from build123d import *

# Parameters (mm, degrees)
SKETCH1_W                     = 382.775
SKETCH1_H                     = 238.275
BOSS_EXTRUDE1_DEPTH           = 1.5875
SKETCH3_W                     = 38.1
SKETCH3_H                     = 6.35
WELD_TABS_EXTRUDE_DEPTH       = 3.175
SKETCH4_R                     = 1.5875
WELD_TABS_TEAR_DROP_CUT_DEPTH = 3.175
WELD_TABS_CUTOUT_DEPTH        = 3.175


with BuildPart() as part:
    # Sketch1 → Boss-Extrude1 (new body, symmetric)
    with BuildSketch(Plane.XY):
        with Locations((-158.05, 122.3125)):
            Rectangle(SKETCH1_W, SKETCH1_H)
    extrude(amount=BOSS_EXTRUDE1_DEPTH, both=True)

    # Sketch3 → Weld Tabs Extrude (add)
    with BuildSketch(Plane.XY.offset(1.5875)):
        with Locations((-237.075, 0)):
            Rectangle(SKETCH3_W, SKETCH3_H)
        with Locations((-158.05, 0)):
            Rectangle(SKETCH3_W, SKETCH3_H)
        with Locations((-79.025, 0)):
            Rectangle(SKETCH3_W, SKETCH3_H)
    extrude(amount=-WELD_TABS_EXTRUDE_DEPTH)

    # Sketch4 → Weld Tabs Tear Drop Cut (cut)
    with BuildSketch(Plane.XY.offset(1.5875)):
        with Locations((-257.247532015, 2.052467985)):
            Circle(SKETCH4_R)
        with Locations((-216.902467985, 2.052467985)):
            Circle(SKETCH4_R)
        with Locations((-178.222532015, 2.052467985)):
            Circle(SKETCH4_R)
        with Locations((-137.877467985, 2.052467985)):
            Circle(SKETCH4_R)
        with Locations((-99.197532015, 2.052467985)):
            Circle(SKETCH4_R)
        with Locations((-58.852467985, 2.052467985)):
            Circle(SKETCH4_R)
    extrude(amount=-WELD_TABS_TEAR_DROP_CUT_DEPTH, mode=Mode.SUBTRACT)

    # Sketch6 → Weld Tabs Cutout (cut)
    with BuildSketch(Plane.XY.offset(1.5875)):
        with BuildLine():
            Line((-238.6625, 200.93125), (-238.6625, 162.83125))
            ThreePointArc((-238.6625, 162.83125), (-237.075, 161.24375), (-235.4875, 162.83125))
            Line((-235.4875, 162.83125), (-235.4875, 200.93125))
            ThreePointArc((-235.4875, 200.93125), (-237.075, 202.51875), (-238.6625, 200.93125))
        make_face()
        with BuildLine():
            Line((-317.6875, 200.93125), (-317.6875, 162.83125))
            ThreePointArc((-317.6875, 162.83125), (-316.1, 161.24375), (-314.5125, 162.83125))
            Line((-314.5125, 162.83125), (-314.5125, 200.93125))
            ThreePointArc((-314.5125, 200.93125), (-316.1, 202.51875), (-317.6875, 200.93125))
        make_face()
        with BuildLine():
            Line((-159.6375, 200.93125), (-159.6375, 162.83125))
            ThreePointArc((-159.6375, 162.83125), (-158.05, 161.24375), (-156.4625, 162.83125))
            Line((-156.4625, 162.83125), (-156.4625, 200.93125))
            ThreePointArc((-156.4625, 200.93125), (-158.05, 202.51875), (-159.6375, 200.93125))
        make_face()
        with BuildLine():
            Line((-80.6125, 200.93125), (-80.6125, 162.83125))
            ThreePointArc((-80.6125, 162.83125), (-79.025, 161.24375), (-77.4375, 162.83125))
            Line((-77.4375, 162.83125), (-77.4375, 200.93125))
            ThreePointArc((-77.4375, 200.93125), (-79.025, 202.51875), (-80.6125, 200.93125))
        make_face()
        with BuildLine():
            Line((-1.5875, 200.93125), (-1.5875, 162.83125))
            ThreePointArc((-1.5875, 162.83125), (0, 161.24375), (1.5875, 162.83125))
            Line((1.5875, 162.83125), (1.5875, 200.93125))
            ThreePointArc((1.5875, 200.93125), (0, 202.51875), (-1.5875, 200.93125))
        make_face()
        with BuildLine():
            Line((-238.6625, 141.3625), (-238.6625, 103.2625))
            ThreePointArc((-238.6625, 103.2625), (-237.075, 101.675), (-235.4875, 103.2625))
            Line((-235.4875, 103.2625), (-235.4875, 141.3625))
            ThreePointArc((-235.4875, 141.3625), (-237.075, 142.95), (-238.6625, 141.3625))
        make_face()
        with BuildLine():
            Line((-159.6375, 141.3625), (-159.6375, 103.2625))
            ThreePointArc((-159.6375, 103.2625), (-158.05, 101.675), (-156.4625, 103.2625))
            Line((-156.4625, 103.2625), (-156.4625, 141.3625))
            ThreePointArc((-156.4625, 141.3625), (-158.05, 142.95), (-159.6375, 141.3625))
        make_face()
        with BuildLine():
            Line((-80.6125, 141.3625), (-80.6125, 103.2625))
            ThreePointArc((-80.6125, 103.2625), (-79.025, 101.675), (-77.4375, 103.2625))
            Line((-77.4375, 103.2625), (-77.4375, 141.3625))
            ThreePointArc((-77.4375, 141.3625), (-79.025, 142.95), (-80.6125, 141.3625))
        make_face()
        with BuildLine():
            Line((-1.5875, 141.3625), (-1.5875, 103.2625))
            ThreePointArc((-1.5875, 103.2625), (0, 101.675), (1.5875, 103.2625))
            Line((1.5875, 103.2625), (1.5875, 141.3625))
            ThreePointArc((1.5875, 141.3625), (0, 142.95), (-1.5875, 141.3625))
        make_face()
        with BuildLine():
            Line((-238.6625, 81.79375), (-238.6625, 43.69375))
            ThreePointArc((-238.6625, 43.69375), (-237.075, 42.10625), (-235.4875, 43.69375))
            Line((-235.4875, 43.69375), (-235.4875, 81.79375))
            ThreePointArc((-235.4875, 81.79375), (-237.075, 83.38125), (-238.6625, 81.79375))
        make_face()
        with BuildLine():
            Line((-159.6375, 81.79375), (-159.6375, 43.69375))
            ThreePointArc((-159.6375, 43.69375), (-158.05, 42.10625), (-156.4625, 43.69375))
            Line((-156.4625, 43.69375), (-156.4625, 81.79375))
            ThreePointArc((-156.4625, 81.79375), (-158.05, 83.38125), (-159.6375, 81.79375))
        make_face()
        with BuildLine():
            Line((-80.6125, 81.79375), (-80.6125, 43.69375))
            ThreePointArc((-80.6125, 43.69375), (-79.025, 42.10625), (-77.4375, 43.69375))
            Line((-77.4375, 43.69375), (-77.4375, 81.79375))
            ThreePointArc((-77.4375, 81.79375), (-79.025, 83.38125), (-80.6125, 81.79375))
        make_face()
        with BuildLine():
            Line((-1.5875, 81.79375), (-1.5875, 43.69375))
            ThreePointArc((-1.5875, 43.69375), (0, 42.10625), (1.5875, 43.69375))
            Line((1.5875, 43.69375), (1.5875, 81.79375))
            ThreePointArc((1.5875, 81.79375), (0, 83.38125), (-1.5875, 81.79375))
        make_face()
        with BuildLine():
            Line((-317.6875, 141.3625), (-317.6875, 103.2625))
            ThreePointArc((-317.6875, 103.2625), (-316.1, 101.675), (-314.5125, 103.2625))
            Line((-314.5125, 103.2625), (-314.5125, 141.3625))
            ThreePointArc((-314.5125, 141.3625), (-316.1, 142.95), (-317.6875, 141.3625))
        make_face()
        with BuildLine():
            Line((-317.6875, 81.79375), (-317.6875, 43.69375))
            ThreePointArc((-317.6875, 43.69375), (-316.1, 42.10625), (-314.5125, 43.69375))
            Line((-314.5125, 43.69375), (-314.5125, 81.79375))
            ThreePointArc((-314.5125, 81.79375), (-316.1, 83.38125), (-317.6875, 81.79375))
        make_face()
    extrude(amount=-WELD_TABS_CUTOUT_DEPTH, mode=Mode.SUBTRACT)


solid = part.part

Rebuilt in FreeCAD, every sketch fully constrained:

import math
import FreeCAD as App
import Part
import Sketcher
Q = App.Units.Quantity

doc = App.newDocument("Part")
params = doc.addObject("Spreadsheet::Sheet", "Params")
for row, (alias, value) in enumerate([
    ("pad1_length", "0.125 in"),
    ("sketch2_width", "1.5 in"),
    ("sketch2_height", "0.25 in"),
    ("pad2_length", "0.125 in"),
    ("sketch3_diameter", "0.125 in"),
    ("pocket1_length", "0.125 in"),
    ("sketch4_height", "1.5 in"),
    ("sketch4_radius", "0.0625 in"),
    ("pocket2_length", "0.125 in"),
], start=1):
    params.set(f"A{row}", alias)
    params.set(f"B{row}", "=" + value)
    params.setAlias(f"B{row}", alias)

body = doc.addObject("PartDesign::Body", "Body")

# Sketch on XY plane
sketch1 = doc.addObject("Sketcher::SketchObject", "Sketch")
body.addObject(sketch1)
sketch1.AttachmentSupport = (doc.XY_Plane, [""])
sketch1.MapMode = "FlatFace"
sketch1.addGeometry(Part.LineSegment(App.Vector(-349, 241, 0), App.Vector(-349, 3, 0)), False)
sketch1.addGeometry(Part.LineSegment(App.Vector(-349, 3, 0), App.Vector(33, 3, 0)), False)
sketch1.addGeometry(Part.LineSegment(App.Vector(33, 3, 0), App.Vector(33, 241, 0)), False)
sketch1.addGeometry(Part.LineSegment(App.Vector(33, 241, 0), App.Vector(-349, 241, 0)), False)
sketch1.addConstraint(Sketcher.Constraint("Coincident", 0, 2, 1, 1))
sketch1.addConstraint(Sketcher.Constraint("Coincident", 1, 2, 2, 1))
sketch1.addConstraint(Sketcher.Constraint("Coincident", 2, 2, 3, 1))
sketch1.addConstraint(Sketcher.Constraint("Coincident", 3, 2, 0, 1))
sketch1.addConstraint(Sketcher.Constraint("Vertical", 0))
sketch1.addConstraint(Sketcher.Constraint("Horizontal", 1))
sketch1.addConstraint(Sketcher.Constraint("Vertical", 2))
sketch1.addConstraint(Sketcher.Constraint("Horizontal", 3))
sketch1.addConstraint(Sketcher.Constraint("DistanceY", -1, 1, 0, 2, Q("0.125 in")))
sketch1.addConstraint(Sketcher.Constraint("DistanceX", -1, 1, 1, 2, Q("1.3125 in")))
sketch1.addConstraint(Sketcher.Constraint("DistanceX", 1, 1, 1, 2, Q("382.775 mm")))
sketch1.addConstraint(Sketcher.Constraint("DistanceY", 0, 2, 0, 1, Q("238.275 mm")))
pad1 = doc.addObject("PartDesign::Pad", "Pad")
body.addObject(pad1)
pad1.Profile = sketch1
pad1.setExpression("Length", "Params.pad1_length")
pad1.Midplane = True

# Sketch on XY plane
sketch2 = doc.addObject("Sketcher::SketchObject", "Sketch001")
body.addObject(sketch2)
sketch2.AttachmentSupport = (doc.XY_Plane, [""])
sketch2.MapMode = "FlatFace"
sketch2.AttachmentOffset = App.Placement(App.Vector(0, 0, 0.0625 * 25.4), App.Rotation())
sketch2.addGeometry(Part.LineSegment(App.Vector(-256, 3, 0), App.Vector(-256, -3, 0)), False)
sketch2.addGeometry(Part.LineSegment(App.Vector(-256, -3, 0), App.Vector(-218, -3, 0)), False)
sketch2.addGeometry(Part.LineSegment(App.Vector(-218, -3, 0), App.Vector(-218, 3, 0)), False)
sketch2.addGeometry(Part.LineSegment(App.Vector(-218, 3, 0), App.Vector(-256, 3, 0)), False)
sketch2.addGeometry(Part.LineSegment(App.Vector(-177, 3, 0), App.Vector(-177, -3, 0)), False)
sketch2.addGeometry(Part.LineSegment(App.Vector(-177, -3, 0), App.Vector(-139, -3, 0)), False)
sketch2.addGeometry(Part.LineSegment(App.Vector(-139, -3, 0), App.Vector(-139, 3, 0)), False)
sketch2.addGeometry(Part.LineSegment(App.Vector(-139, 3, 0), App.Vector(-177, 3, 0)), False)
sketch2.addGeometry(Part.LineSegment(App.Vector(-98, 3, 0), App.Vector(-98, -3, 0)), False)
sketch2.addGeometry(Part.LineSegment(App.Vector(-98, -3, 0), App.Vector(-60, -3, 0)), False)
sketch2.addGeometry(Part.LineSegment(App.Vector(-60, -3, 0), App.Vector(-60, 3, 0)), False)
sketch2.addGeometry(Part.LineSegment(App.Vector(-60, 3, 0), App.Vector(-98, 3, 0)), False)
sketch2.addConstraint(Sketcher.Constraint("Coincident", 0, 2, 1, 1))
sketch2.addConstraint(Sketcher.Constraint("Coincident", 1, 2, 2, 1))
sketch2.addConstraint(Sketcher.Constraint("Coincident", 2, 2, 3, 1))
sketch2.addConstraint(Sketcher.Constraint("Coincident", 3, 2, 0, 1))
sketch2.addConstraint(Sketcher.Constraint("Coincident", 4, 2, 5, 1))
sketch2.addConstraint(Sketcher.Constraint("Coincident", 5, 2, 6, 1))
sketch2.addConstraint(Sketcher.Constraint("Coincident", 6, 2, 7, 1))
sketch2.addConstraint(Sketcher.Constraint("Coincident", 7, 2, 4, 1))
sketch2.addConstraint(Sketcher.Constraint("Coincident", 8, 2, 9, 1))
sketch2.addConstraint(Sketcher.Constraint("Coincident", 9, 2, 10, 1))
sketch2.addConstraint(Sketcher.Constraint("Coincident", 10, 2, 11, 1))
sketch2.addConstraint(Sketcher.Constraint("Coincident", 11, 2, 8, 1))
sketch2.addConstraint(Sketcher.Constraint("Vertical", 0))
sketch2.addConstraint(Sketcher.Constraint("Horizontal", 1))
sketch2.addConstraint(Sketcher.Constraint("Vertical", 2))
sketch2.addConstraint(Sketcher.Constraint("Horizontal", 3))
sketch2.addConstraint(Sketcher.Constraint("Vertical", 4))
sketch2.addConstraint(Sketcher.Constraint("Horizontal", 5))
sketch2.addConstraint(Sketcher.Constraint("Vertical", 6))
sketch2.addConstraint(Sketcher.Constraint("Horizontal", 7))
sketch2.addConstraint(Sketcher.Constraint("Vertical", 8))
sketch2.addConstraint(Sketcher.Constraint("Horizontal", 9))
sketch2.addConstraint(Sketcher.Constraint("Vertical", 10))
sketch2.addConstraint(Sketcher.Constraint("Horizontal", 11))
sketch2.addConstraint(Sketcher.Constraint("Horizontal", 1, 2, 4, 2))
sketch2.addConstraint(Sketcher.Constraint("Horizontal", 3, 2, 6, 2))
sketch2.addConstraint(Sketcher.Constraint("Horizontal", 5, 2, 8, 2))
sketch2.addConstraint(Sketcher.Constraint("Horizontal", 7, 2, 10, 2))
sketch2.addConstraint(Sketcher.Constraint("Equal", 3, 5))
sketch2.addConstraint(Sketcher.Constraint("Equal", 7, 9))
sketch2.addConstraint(Sketcher.Constraint("DistanceX", 1, 1, 1, 2, Q("1.5 in")))
sketch2.addConstraint(Sketcher.Constraint("DistanceY", 0, 2, 0, 1, Q("0.25 in")))
sketch2.addConstraint(Sketcher.Constraint("DistanceY", 0, 2, -1, 1, Q("0.125 in")))
sketch2.addConstraint(Sketcher.Constraint("DistanceX", 0, 2, -1, 1, Q("256.125 mm")))
sketch2.addConstraint(Sketcher.Constraint("DistanceX", 4, 2, -1, 1, Q("177.1 mm")))
sketch2.addConstraint(Sketcher.Constraint("DistanceX", 8, 2, -1, 1, Q("98.075 mm")))
sketch2.setExpression("Constraints[30]", "Params.sketch2_width")
sketch2.setExpression("Constraints[31]", "Params.sketch2_height")
pad2 = doc.addObject("PartDesign::Pad", "Pad001")
body.addObject(pad2)
pad2.Profile = sketch2
pad2.setExpression("Length", "Params.pad2_length")
pad2.Reversed = True

# Sketch on XY plane
sketch3 = doc.addObject("Sketcher::SketchObject", "Sketch002")
body.addObject(sketch3)
sketch3.AttachmentSupport = (doc.XY_Plane, [""])
sketch3.MapMode = "FlatFace"
sketch3.AttachmentOffset = App.Placement(App.Vector(0, 0, 0.0625 * 25.4), App.Rotation())
sketch3.addGeometry(Part.Circle(App.Vector(-257.2, 2.1, 0), App.Vector(0, 0, 1), 1.6), False)
sketch3.addGeometry(Part.Circle(App.Vector(-216.9, 2.1, 0), App.Vector(0, 0, 1), 1.6), False)
sketch3.addGeometry(Part.Circle(App.Vector(-178.2, 2.1, 0), App.Vector(0, 0, 1), 1.6), False)
sketch3.addGeometry(Part.Circle(App.Vector(-137.9, 2.1, 0), App.Vector(0, 0, 1), 1.6), False)
sketch3.addGeometry(Part.Circle(App.Vector(-99.2, 2.1, 0), App.Vector(0, 0, 1), 1.6), False)
sketch3.addGeometry(Part.Circle(App.Vector(-58.9, 2.1, 0), App.Vector(0, 0, 1), 1.6), False)
sketch3.addConstraint(Sketcher.Constraint("Equal", 0, 1))
sketch3.addConstraint(Sketcher.Constraint("Equal", 1, 2))
sketch3.addConstraint(Sketcher.Constraint("Equal", 2, 3))
sketch3.addConstraint(Sketcher.Constraint("Equal", 3, 4))
sketch3.addConstraint(Sketcher.Constraint("Equal", 4, 5))
sketch3.addConstraint(Sketcher.Constraint("Horizontal", 0, 3, 1, 3))
sketch3.addConstraint(Sketcher.Constraint("Horizontal", 1, 3, 2, 3))
sketch3.addConstraint(Sketcher.Constraint("Horizontal", 2, 3, 3, 3))
sketch3.addConstraint(Sketcher.Constraint("Horizontal", 3, 3, 4, 3))
sketch3.addConstraint(Sketcher.Constraint("Horizontal", 4, 3, 5, 3))
sketch3.addConstraint(Sketcher.Constraint("Diameter", 0, Q("0.125 in")))
sketch3.addConstraint(Sketcher.Constraint("DistanceX", 0, 3, 2, 3, Q("79.025 mm")))
sketch3.addConstraint(Sketcher.Constraint("DistanceX", 1, 3, 3, 3, Q("79.025 mm")))
sketch3.addConstraint(Sketcher.Constraint("DistanceX", 2, 3, 4, 3, Q("79.025 mm")))
sketch3.addConstraint(Sketcher.Constraint("DistanceX", 3, 3, 5, 3, Q("79.025 mm")))
sketch3.addConstraint(Sketcher.Constraint("DistanceX", 0, 3, -1, 1, Q("257.247532 mm")))
sketch3.addConstraint(Sketcher.Constraint("DistanceY", -1, 1, 0, 3, Q("2.052468 mm")))
sketch3.addConstraint(Sketcher.Constraint("DistanceX", 1, 3, -1, 1, Q("216.902468 mm")))
sketch3.setExpression("Constraints[10]", "Params.sketch3_diameter")
pocket1 = doc.addObject("PartDesign::Pocket", "Pocket")
body.addObject(pocket1)
pocket1.Profile = sketch3
pocket1.setExpression("Length", "Params.pocket1_length")

# Sketch on XY plane
sketch4 = doc.addObject("Sketcher::SketchObject", "Sketch003")
body.addObject(sketch4)
sketch4.AttachmentSupport = (doc.XY_Plane, [""])
sketch4.MapMode = "FlatFace"
sketch4.AttachmentOffset = App.Placement(App.Vector(0, 0, 0.0625 * 25.4), App.Rotation())
sketch4.addGeometry(Part.LineSegment(App.Vector(-238.7, 200.9, 0), App.Vector(-238.7, 162.8, 0)), False)
sketch4.addGeometry(Part.ArcOfCircle(Part.Circle(App.Vector(-237.1, 162.8, 0), App.Vector(0, 0, 1), 1.6), math.radians(180), math.radians(360)), False)
sketch4.addGeometry(Part.LineSegment(App.Vector(-235.5, 162.8, 0), App.Vector(-235.5, 200.9, 0)), False)
sketch4.addGeometry(Part.ArcOfCircle(Part.Circle(App.Vector(-237.1, 200.9, 0), App.Vector(0, 0, 1), 1.6), math.radians(0), math.radians(180)), False)
sketch4.addGeometry(Part.LineSegment(App.Vector(-317.7, 200.9, 0), App.Vector(-317.7, 162.8, 0)), False)
sketch4.addGeometry(Part.ArcOfCircle(Part.Circle(App.Vector(-316.1, 162.8, 0), App.Vector(0, 0, 1), 1.6), math.radians(180), math.radians(360)), False)
sketch4.addGeometry(Part.LineSegment(App.Vector(-314.5, 162.8, 0), App.Vector(-314.5, 200.9, 0)), False)
sketch4.addGeometry(Part.ArcOfCircle(Part.Circle(App.Vector(-316.1, 200.9, 0), App.Vector(0, 0, 1), 1.6), math.radians(0), math.radians(180)), False)
sketch4.addGeometry(Part.LineSegment(App.Vector(-159.6, 200.9, 0), App.Vector(-159.6, 162.8, 0)), False)
sketch4.addGeometry(Part.ArcOfCircle(Part.Circle(App.Vector(-158.1, 162.8, 0), App.Vector(0, 0, 1), 1.6), math.radians(180), math.radians(360)), False)
sketch4.addGeometry(Part.LineSegment(App.Vector(-156.5, 162.8, 0), App.Vector(-156.5, 200.9, 0)), False)
sketch4.addGeometry(Part.ArcOfCircle(Part.Circle(App.Vector(-158.1, 200.9, 0), App.Vector(0, 0, 1), 1.6), math.radians(0), math.radians(180)), False)
sketch4.addGeometry(Part.LineSegment(App.Vector(-80.6, 200.9, 0), App.Vector(-80.6, 162.8, 0)), False)
sketch4.addGeometry(Part.ArcOfCircle(Part.Circle(App.Vector(-79, 162.8, 0), App.Vector(0, 0, 1), 1.6), math.radians(180), math.radians(360)), False)
sketch4.addGeometry(Part.LineSegment(App.Vector(-77.4, 162.8, 0), App.Vector(-77.4, 200.9, 0)), False)
sketch4.addGeometry(Part.ArcOfCircle(Part.Circle(App.Vector(-79, 200.9, 0), App.Vector(0, 0, 1), 1.6), math.radians(0), math.radians(180)), False)
sketch4.addGeometry(Part.LineSegment(App.Vector(-1.6, 200.9, 0), App.Vector(-1.6, 162.8, 0)), False)
sketch4.addGeometry(Part.ArcOfCircle(Part.Circle(App.Vector(0, 162.8, 0), App.Vector(0, 0, 1), 1.6), math.radians(180), math.radians(360)), False)
sketch4.addGeometry(Part.LineSegment(App.Vector(1.6, 162.8, 0), App.Vector(1.6, 200.9, 0)), False)
sketch4.addGeometry(Part.ArcOfCircle(Part.Circle(App.Vector(0, 200.9, 0), App.Vector(0, 0, 1), 1.6), math.radians(0), math.radians(180)), False)
sketch4.addGeometry(Part.LineSegment(App.Vector(-238.7, 141.4, 0), App.Vector(-238.7, 103.3, 0)), False)
sketch4.addGeometry(Part.ArcOfCircle(Part.Circle(App.Vector(-237.1, 103.3, 0), App.Vector(0, 0, 1), 1.6), math.radians(180), math.radians(360)), False)
sketch4.addGeometry(Part.LineSegment(App.Vector(-235.5, 103.3, 0), App.Vector(-235.5, 141.4, 0)), False)
sketch4.addGeometry(Part.ArcOfCircle(Part.Circle(App.Vector(-237.1, 141.4, 0), App.Vector(0, 0, 1), 1.6), math.radians(0), math.radians(180)), False)
sketch4.addGeometry(Part.LineSegment(App.Vector(-159.6, 141.4, 0), App.Vector(-159.6, 103.3, 0)), False)
sketch4.addGeometry(Part.ArcOfCircle(Part.Circle(App.Vector(-158.1, 103.3, 0), App.Vector(0, 0, 1), 1.6), math.radians(180), math.radians(360)), False)
sketch4.addGeometry(Part.LineSegment(App.Vector(-156.5, 103.3, 0), App.Vector(-156.5, 141.4, 0)), False)
sketch4.addGeometry(Part.ArcOfCircle(Part.Circle(App.Vector(-158.1, 141.4, 0), App.Vector(0, 0, 1), 1.6), math.radians(0), math.radians(180)), False)
sketch4.addGeometry(Part.LineSegment(App.Vector(-80.6, 141.4, 0), App.Vector(-80.6, 103.3, 0)), False)
sketch4.addGeometry(Part.ArcOfCircle(Part.Circle(App.Vector(-79, 103.3, 0), App.Vector(0, 0, 1), 1.6), math.radians(180), math.radians(360)), False)
sketch4.addGeometry(Part.LineSegment(App.Vector(-77.4, 103.3, 0), App.Vector(-77.4, 141.4, 0)), False)
sketch4.addGeometry(Part.ArcOfCircle(Part.Circle(App.Vector(-79, 141.4, 0), App.Vector(0, 0, 1), 1.6), math.radians(0), math.radians(180)), False)
sketch4.addGeometry(Part.LineSegment(App.Vector(-1.6, 141.4, 0), App.Vector(-1.6, 103.3, 0)), False)
sketch4.addGeometry(Part.ArcOfCircle(Part.Circle(App.Vector(0, 103.3, 0), App.Vector(0, 0, 1), 1.6), math.radians(180), math.radians(360)), False)
sketch4.addGeometry(Part.LineSegment(App.Vector(1.6, 103.3, 0), App.Vector(1.6, 141.4, 0)), False)
sketch4.addGeometry(Part.ArcOfCircle(Part.Circle(App.Vector(0, 141.4, 0), App.Vector(0, 0, 1), 1.6), math.radians(0), math.radians(180)), False)
sketch4.addGeometry(Part.LineSegment(App.Vector(-238.7, 81.8, 0), App.Vector(-238.7, 43.7, 0)), False)
sketch4.addGeometry(Part.ArcOfCircle(Part.Circle(App.Vector(-237.1, 43.7, 0), App.Vector(0, 0, 1), 1.6), math.radians(180), math.radians(360)), False)
sketch4.addGeometry(Part.LineSegment(App.Vector(-235.5, 43.7, 0), App.Vector(-235.5, 81.8, 0)), False)
sketch4.addGeometry(Part.ArcOfCircle(Part.Circle(App.Vector(-237.1, 81.8, 0), App.Vector(0, 0, 1), 1.6), math.radians(0), math.radians(180)), False)
sketch4.addGeometry(Part.LineSegment(App.Vector(-159.6, 81.8, 0), App.Vector(-159.6, 43.7, 0)), False)
sketch4.addGeometry(Part.ArcOfCircle(Part.Circle(App.Vector(-158.1, 43.7, 0), App.Vector(0, 0, 1), 1.6), math.radians(180), math.radians(360)), False)
sketch4.addGeometry(Part.LineSegment(App.Vector(-156.5, 43.7, 0), App.Vector(-156.5, 81.8, 0)), False)
sketch4.addGeometry(Part.ArcOfCircle(Part.Circle(App.Vector(-158.1, 81.8, 0), App.Vector(0, 0, 1), 1.6), math.radians(0), math.radians(180)), False)
sketch4.addGeometry(Part.LineSegment(App.Vector(-80.6, 81.8, 0), App.Vector(-80.6, 43.7, 0)), False)
sketch4.addGeometry(Part.ArcOfCircle(Part.Circle(App.Vector(-79, 43.7, 0), App.Vector(0, 0, 1), 1.6), math.radians(180), math.radians(360)), False)
sketch4.addGeometry(Part.LineSegment(App.Vector(-77.4, 43.7, 0), App.Vector(-77.4, 81.8, 0)), False)
sketch4.addGeometry(Part.ArcOfCircle(Part.Circle(App.Vector(-79, 81.8, 0), App.Vector(0, 0, 1), 1.6), math.radians(0), math.radians(180)), False)
sketch4.addGeometry(Part.LineSegment(App.Vector(-1.6, 81.8, 0), App.Vector(-1.6, 43.7, 0)), False)
sketch4.addGeometry(Part.ArcOfCircle(Part.Circle(App.Vector(0, 43.7, 0), App.Vector(0, 0, 1), 1.6), math.radians(180), math.radians(360)), False)
sketch4.addGeometry(Part.LineSegment(App.Vector(1.6, 43.7, 0), App.Vector(1.6, 81.8, 0)), False)
sketch4.addGeometry(Part.ArcOfCircle(Part.Circle(App.Vector(0, 81.8, 0), App.Vector(0, 0, 1), 1.6), math.radians(0), math.radians(180)), False)
sketch4.addGeometry(Part.LineSegment(App.Vector(-317.7, 141.4, 0), App.Vector(-317.7, 103.3, 0)), False)
sketch4.addGeometry(Part.ArcOfCircle(Part.Circle(App.Vector(-316.1, 103.3, 0), App.Vector(0, 0, 1), 1.6), math.radians(180), math.radians(360)), False)
sketch4.addGeometry(Part.LineSegment(App.Vector(-314.5, 103.3, 0), App.Vector(-314.5, 141.4, 0)), False)
sketch4.addGeometry(Part.ArcOfCircle(Part.Circle(App.Vector(-316.1, 141.4, 0), App.Vector(0, 0, 1), 1.6), math.radians(0), math.radians(180)), False)
sketch4.addGeometry(Part.LineSegment(App.Vector(-317.7, 81.8, 0), App.Vector(-317.7, 43.7, 0)), False)
sketch4.addGeometry(Part.ArcOfCircle(Part.Circle(App.Vector(-316.1, 43.7, 0), App.Vector(0, 0, 1), 1.6), math.radians(180), math.radians(360)), False)
sketch4.addGeometry(Part.LineSegment(App.Vector(-314.5, 43.7, 0), App.Vector(-314.5, 81.8, 0)), False)
sketch4.addGeometry(Part.ArcOfCircle(Part.Circle(App.Vector(-316.1, 81.8, 0), App.Vector(0, 0, 1), 1.6), math.radians(0), math.radians(180)), False)
sketch4.addConstraint(Sketcher.Constraint("Tangent", 0, 2, 1, 1))
sketch4.addConstraint(Sketcher.Constraint("Tangent", 1, 2, 2, 1))
sketch4.addConstraint(Sketcher.Constraint("Tangent", 2, 2, 3, 1))
sketch4.addConstraint(Sketcher.Constraint("Tangent", 3, 2, 0, 1))
sketch4.addConstraint(Sketcher.Constraint("Tangent", 4, 2, 5, 1))
sketch4.addConstraint(Sketcher.Constraint("Tangent", 5, 2, 6, 1))
sketch4.addConstraint(Sketcher.Constraint("Tangent", 6, 2, 7, 1))
sketch4.addConstraint(Sketcher.Constraint("Tangent", 7, 2, 4, 1))
sketch4.addConstraint(Sketcher.Constraint("Tangent", 8, 2, 9, 1))
sketch4.addConstraint(Sketcher.Constraint("Tangent", 9, 2, 10, 1))
sketch4.addConstraint(Sketcher.Constraint("Tangent", 10, 2, 11, 1))
sketch4.addConstraint(Sketcher.Constraint("Tangent", 11, 2, 8, 1))
sketch4.addConstraint(Sketcher.Constraint("Tangent", 12, 2, 13, 1))
sketch4.addConstraint(Sketcher.Constraint("Tangent", 13, 2, 14, 1))
sketch4.addConstraint(Sketcher.Constraint("Tangent", 14, 2, 15, 1))
sketch4.addConstraint(Sketcher.Constraint("Tangent", 15, 2, 12, 1))
sketch4.addConstraint(Sketcher.Constraint("Tangent", 16, 2, 17, 1))
sketch4.addConstraint(Sketcher.Constraint("Tangent", 17, 2, 18, 1))
sketch4.addConstraint(Sketcher.Constraint("Tangent", 18, 2, 19, 1))
sketch4.addConstraint(Sketcher.Constraint("Tangent", 19, 2, 16, 1))
sketch4.addConstraint(Sketcher.Constraint("Tangent", 20, 2, 21, 1))
sketch4.addConstraint(Sketcher.Constraint("Tangent", 21, 2, 22, 1))
sketch4.addConstraint(Sketcher.Constraint("Tangent", 22, 2, 23, 1))
sketch4.addConstraint(Sketcher.Constraint("Tangent", 23, 2, 20, 1))
sketch4.addConstraint(Sketcher.Constraint("Tangent", 24, 2, 25, 1))
sketch4.addConstraint(Sketcher.Constraint("Tangent", 25, 2, 26, 1))
sketch4.addConstraint(Sketcher.Constraint("Tangent", 26, 2, 27, 1))
sketch4.addConstraint(Sketcher.Constraint("Tangent", 27, 2, 24, 1))
sketch4.addConstraint(Sketcher.Constraint("Tangent", 28, 2, 29, 1))
sketch4.addConstraint(Sketcher.Constraint("Tangent", 29, 2, 30, 1))
sketch4.addConstraint(Sketcher.Constraint("Tangent", 30, 2, 31, 1))
sketch4.addConstraint(Sketcher.Constraint("Tangent", 31, 2, 28, 1))
sketch4.addConstraint(Sketcher.Constraint("Tangent", 32, 2, 33, 1))
sketch4.addConstraint(Sketcher.Constraint("Tangent", 33, 2, 34, 1))
sketch4.addConstraint(Sketcher.Constraint("Tangent", 34, 2, 35, 1))
sketch4.addConstraint(Sketcher.Constraint("Tangent", 35, 2, 32, 1))
sketch4.addConstraint(Sketcher.Constraint("Tangent", 36, 2, 37, 1))
sketch4.addConstraint(Sketcher.Constraint("Tangent", 37, 2, 38, 1))
sketch4.addConstraint(Sketcher.Constraint("Tangent", 38, 2, 39, 1))
sketch4.addConstraint(Sketcher.Constraint("Tangent", 39, 2, 36, 1))
sketch4.addConstraint(Sketcher.Constraint("Tangent", 40, 2, 41, 1))
sketch4.addConstraint(Sketcher.Constraint("Tangent", 41, 2, 42, 1))
sketch4.addConstraint(Sketcher.Constraint("Tangent", 42, 2, 43, 1))
sketch4.addConstraint(Sketcher.Constraint("Tangent", 43, 2, 40, 1))
sketch4.addConstraint(Sketcher.Constraint("Tangent", 44, 2, 45, 1))
sketch4.addConstraint(Sketcher.Constraint("Tangent", 45, 2, 46, 1))
sketch4.addConstraint(Sketcher.Constraint("Tangent", 46, 2, 47, 1))
sketch4.addConstraint(Sketcher.Constraint("Tangent", 47, 2, 44, 1))
sketch4.addConstraint(Sketcher.Constraint("Tangent", 48, 2, 49, 1))
sketch4.addConstraint(Sketcher.Constraint("Tangent", 49, 2, 50, 1))
sketch4.addConstraint(Sketcher.Constraint("Tangent", 50, 2, 51, 1))
sketch4.addConstraint(Sketcher.Constraint("Tangent", 51, 2, 48, 1))
sketch4.addConstraint(Sketcher.Constraint("Tangent", 52, 2, 53, 1))
sketch4.addConstraint(Sketcher.Constraint("Tangent", 53, 2, 54, 1))
sketch4.addConstraint(Sketcher.Constraint("Tangent", 54, 2, 55, 1))
sketch4.addConstraint(Sketcher.Constraint("Tangent", 55, 2, 52, 1))
sketch4.addConstraint(Sketcher.Constraint("Tangent", 56, 2, 57, 1))
sketch4.addConstraint(Sketcher.Constraint("Tangent", 57, 2, 58, 1))
sketch4.addConstraint(Sketcher.Constraint("Tangent", 58, 2, 59, 1))
sketch4.addConstraint(Sketcher.Constraint("Tangent", 59, 2, 56, 1))
sketch4.addConstraint(Sketcher.Constraint("Vertical", 0))
sketch4.addConstraint(Sketcher.Constraint("Vertical", 2))
sketch4.addConstraint(Sketcher.Constraint("Vertical", 4))
sketch4.addConstraint(Sketcher.Constraint("Vertical", 6))
sketch4.addConstraint(Sketcher.Constraint("Vertical", 8))
sketch4.addConstraint(Sketcher.Constraint("Vertical", 10))
sketch4.addConstraint(Sketcher.Constraint("Vertical", 12))
sketch4.addConstraint(Sketcher.Constraint("Vertical", 14))
sketch4.addConstraint(Sketcher.Constraint("Vertical", 16))
sketch4.addConstraint(Sketcher.Constraint("Vertical", 18))
sketch4.addConstraint(Sketcher.Constraint("Vertical", 20))
sketch4.addConstraint(Sketcher.Constraint("Vertical", 22))
sketch4.addConstraint(Sketcher.Constraint("Vertical", 24))
sketch4.addConstraint(Sketcher.Constraint("Vertical", 26))
sketch4.addConstraint(Sketcher.Constraint("Vertical", 28))
sketch4.addConstraint(Sketcher.Constraint("Vertical", 30))
sketch4.addConstraint(Sketcher.Constraint("Vertical", 32))
sketch4.addConstraint(Sketcher.Constraint("Vertical", 34))
sketch4.addConstraint(Sketcher.Constraint("Vertical", 36))
sketch4.addConstraint(Sketcher.Constraint("Vertical", 38))
sketch4.addConstraint(Sketcher.Constraint("Vertical", 40))
sketch4.addConstraint(Sketcher.Constraint("Vertical", 42))
sketch4.addConstraint(Sketcher.Constraint("Vertical", 44))
sketch4.addConstraint(Sketcher.Constraint("Vertical", 46))
sketch4.addConstraint(Sketcher.Constraint("Vertical", 48))
sketch4.addConstraint(Sketcher.Constraint("Vertical", 50))
sketch4.addConstraint(Sketcher.Constraint("Vertical", 52))
sketch4.addConstraint(Sketcher.Constraint("Vertical", 54))
sketch4.addConstraint(Sketcher.Constraint("Vertical", 56))
sketch4.addConstraint(Sketcher.Constraint("Vertical", 58))
sketch4.addConstraint(Sketcher.Constraint("Equal", 3, 5))
sketch4.addConstraint(Sketcher.Constraint("Equal", 7, 9))
sketch4.addConstraint(Sketcher.Constraint("Equal", 11, 13))
sketch4.addConstraint(Sketcher.Constraint("Equal", 15, 17))
sketch4.addConstraint(Sketcher.Constraint("Equal", 19, 21))
sketch4.addConstraint(Sketcher.Constraint("Equal", 23, 25))
sketch4.addConstraint(Sketcher.Constraint("Equal", 27, 29))
sketch4.addConstraint(Sketcher.Constraint("Equal", 31, 33))
sketch4.addConstraint(Sketcher.Constraint("Equal", 35, 37))
sketch4.addConstraint(Sketcher.Constraint("Equal", 39, 41))
sketch4.addConstraint(Sketcher.Constraint("Equal", 43, 45))
sketch4.addConstraint(Sketcher.Constraint("Equal", 47, 49))
sketch4.addConstraint(Sketcher.Constraint("Equal", 51, 53))
sketch4.addConstraint(Sketcher.Constraint("Equal", 55, 57))
sketch4.addConstraint(Sketcher.Constraint("PointOnObject", 17, 3, -2))
sketch4.addConstraint(Sketcher.Constraint("PointOnObject", 33, 3, -2))
sketch4.addConstraint(Sketcher.Constraint("PointOnObject", 49, 3, -2))
sketch4.addConstraint(Sketcher.Constraint("Horizontal", 1, 3, 5, 3))
sketch4.addConstraint(Sketcher.Constraint("Horizontal", 3, 3, 7, 3))
sketch4.addConstraint(Sketcher.Constraint("Horizontal", 5, 3, 9, 3))
sketch4.addConstraint(Sketcher.Constraint("Horizontal", 7, 3, 11, 3))
sketch4.addConstraint(Sketcher.Constraint("Horizontal", 9, 3, 13, 3))
sketch4.addConstraint(Sketcher.Constraint("Horizontal", 11, 3, 15, 3))
sketch4.addConstraint(Sketcher.Constraint("Horizontal", 13, 3, 17, 3))
sketch4.addConstraint(Sketcher.Constraint("Horizontal", 15, 3, 19, 3))
sketch4.addConstraint(Sketcher.Constraint("Horizontal", 21, 3, 25, 3))
sketch4.addConstraint(Sketcher.Constraint("Horizontal", 23, 3, 27, 3))
sketch4.addConstraint(Sketcher.Constraint("Horizontal", 25, 3, 29, 3))
sketch4.addConstraint(Sketcher.Constraint("Horizontal", 27, 3, 31, 3))
sketch4.addConstraint(Sketcher.Constraint("Horizontal", 29, 3, 33, 3))
sketch4.addConstraint(Sketcher.Constraint("Horizontal", 31, 3, 35, 3))
sketch4.addConstraint(Sketcher.Constraint("Horizontal", 37, 3, 41, 3))
sketch4.addConstraint(Sketcher.Constraint("Horizontal", 39, 3, 43, 3))
sketch4.addConstraint(Sketcher.Constraint("Horizontal", 41, 3, 45, 3))
sketch4.addConstraint(Sketcher.Constraint("Horizontal", 43, 3, 47, 3))
sketch4.addConstraint(Sketcher.Constraint("Horizontal", 45, 3, 49, 3))
sketch4.addConstraint(Sketcher.Constraint("Horizontal", 47, 3, 51, 3))
sketch4.addConstraint(Sketcher.Constraint("Horizontal", 33, 3, 53, 3))
sketch4.addConstraint(Sketcher.Constraint("Horizontal", 35, 3, 55, 3))
sketch4.addConstraint(Sketcher.Constraint("Horizontal", 49, 3, 57, 3))
sketch4.addConstraint(Sketcher.Constraint("Horizontal", 51, 3, 59, 3))
sketch4.addConstraint(Sketcher.Constraint("Vertical", 3, 3, 21, 3))
sketch4.addConstraint(Sketcher.Constraint("Vertical", 11, 3, 25, 3))
sketch4.addConstraint(Sketcher.Constraint("Vertical", 15, 3, 29, 3))
sketch4.addConstraint(Sketcher.Constraint("Vertical", 23, 3, 37, 3))
sketch4.addConstraint(Sketcher.Constraint("Vertical", 27, 3, 41, 3))
sketch4.addConstraint(Sketcher.Constraint("Vertical", 31, 3, 45, 3))
sketch4.addConstraint(Sketcher.Constraint("Vertical", 7, 3, 53, 3))
sketch4.addConstraint(Sketcher.Constraint("Vertical", 55, 3, 57, 3))
sketch4.addConstraint(Sketcher.Constraint("Equal", 18, 20))
sketch4.addConstraint(Sketcher.Constraint("Equal", 34, 36))
sketch4.addConstraint(Sketcher.Constraint("DistanceY", 0, 2, 0, 1, Q("1.5 in")))
sketch4.addConstraint(Sketcher.Constraint("Radius", 1, Q("0.0625 in")))
sketch4.addConstraint(Sketcher.Constraint("DistanceX", 1, 3, -1, 1, Q("237.075 mm")))
sketch4.addConstraint(Sketcher.Constraint("DistanceX", 5, 3, -1, 1, Q("316.1 mm")))
sketch4.addConstraint(Sketcher.Constraint("DistanceX", 9, 3, -1, 1, Q("158.05 mm")))
sketch4.addConstraint(Sketcher.Constraint("DistanceX", 13, 3, -1, 1, Q("79.025 mm")))
sketch4.addConstraint(Sketcher.Constraint("DistanceY", -1, 1, 21, 3, Q("103.2625 mm")))
sketch4.addConstraint(Sketcher.Constraint("DistanceY", -1, 1, 1, 3, Q("162.83125 mm")))
sketch4.addConstraint(Sketcher.Constraint("DistanceY", -1, 1, 37, 3, Q("43.69375 mm")))
sketch4.setExpression("Constraints[141]", "Params.sketch4_height")
sketch4.setExpression("Constraints[142]", "Params.sketch4_radius")
pocket2 = doc.addObject("PartDesign::Pocket", "Pocket001")
body.addObject(pocket2)
pocket2.Profile = sketch4
pocket2.setExpression("Length", "Params.pocket2_length")

doc.recompute()
